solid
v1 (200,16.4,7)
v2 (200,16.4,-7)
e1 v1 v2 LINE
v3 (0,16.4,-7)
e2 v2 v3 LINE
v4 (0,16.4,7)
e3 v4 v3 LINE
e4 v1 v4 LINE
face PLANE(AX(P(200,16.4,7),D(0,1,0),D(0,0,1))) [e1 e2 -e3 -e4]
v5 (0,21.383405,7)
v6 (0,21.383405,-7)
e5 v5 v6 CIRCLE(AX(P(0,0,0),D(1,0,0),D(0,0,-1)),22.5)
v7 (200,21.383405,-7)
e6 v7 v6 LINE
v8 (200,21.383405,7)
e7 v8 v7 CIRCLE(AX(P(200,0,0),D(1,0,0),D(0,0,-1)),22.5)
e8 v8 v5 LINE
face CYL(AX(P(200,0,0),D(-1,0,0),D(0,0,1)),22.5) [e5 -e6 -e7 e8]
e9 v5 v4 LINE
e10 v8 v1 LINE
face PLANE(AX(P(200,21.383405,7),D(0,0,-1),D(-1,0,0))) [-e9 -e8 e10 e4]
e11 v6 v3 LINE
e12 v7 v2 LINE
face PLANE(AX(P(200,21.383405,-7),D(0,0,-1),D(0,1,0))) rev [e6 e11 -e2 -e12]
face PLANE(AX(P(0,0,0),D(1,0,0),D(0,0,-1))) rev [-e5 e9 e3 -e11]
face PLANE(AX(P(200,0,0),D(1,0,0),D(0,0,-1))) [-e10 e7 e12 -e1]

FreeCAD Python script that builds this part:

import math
import FreeCAD as App
import Part
import Sketcher
Q = App.Units.Quantity

doc = App.newDocument("Part")
body = doc.addObject("PartDesign::Body", "Body")

sketch1 = body.newObject("Sketcher::SketchObject", "Sketch")
sketch1.AttachmentSupport = (doc.getObject("YZ_Plane"), [""])
sketch1.MapMode = "FlatFace"
sketch1.addGeometry(Part.LineSegment(App.Vector(16.4, 7, 0), App.Vector(21.4, 7, 0)), False)
sketch1.addGeometry(Part.ArcOfCircle(Part.Circle(App.Vector(0, 0, 0), App.Vector(0, 0, 1), 22.5), math.radians(18), math.radians(342)), False)
sketch1.addGeometry(Part.LineSegment(App.Vector(21.4, -7, 0), App.Vector(16.4, -7, 0)), False)
sketch1.addGeometry(Part.LineSegment(App.Vector(16.4, -7, 0), App.Vector(16.4, 7, 0)), False)
sketch1.addConstraint(Sketcher.Constraint("Coincident", 0, 2, 1, 1))
sketch1.addConstraint(Sketcher.Constraint("Coincident", 1, 2, 2, 1))
sketch1.addConstraint(Sketcher.Constraint("Coincident", 2, 2, 3, 1))
sketch1.addConstraint(Sketcher.Constraint("Coincident", 3, 2, 0, 1))
sketch1.addConstraint(Sketcher.Constraint("Horizontal", 0))
sketch1.addConstraint(Sketcher.Constraint("Horizontal", 2))
sketch1.addConstraint(Sketcher.Constraint("Vertical", 3))
sketch1.addConstraint(Sketcher.Constraint("Coincident", 1, 3, -1, 1))
sketch1.addConstraint(Sketcher.Constraint("Vertical", 0, 2, 1, 2))
sketch1.addConstraint(Sketcher.Constraint("Radius", 1, Q("22.5 mm")))
sketch1.addConstraint(Sketcher.Constraint("DistanceY", 3, 1, 3, 2, Q("14 mm")))
sketch1.addConstraint(Sketcher.Constraint("DistanceX", -1, 1, 2, 2, Q("16.4 mm")))
pad1 = body.newObject("PartDesign::Pad", "Pad")
pad1.Profile = sketch1
pad1.Length = 200

doc.recompute()
